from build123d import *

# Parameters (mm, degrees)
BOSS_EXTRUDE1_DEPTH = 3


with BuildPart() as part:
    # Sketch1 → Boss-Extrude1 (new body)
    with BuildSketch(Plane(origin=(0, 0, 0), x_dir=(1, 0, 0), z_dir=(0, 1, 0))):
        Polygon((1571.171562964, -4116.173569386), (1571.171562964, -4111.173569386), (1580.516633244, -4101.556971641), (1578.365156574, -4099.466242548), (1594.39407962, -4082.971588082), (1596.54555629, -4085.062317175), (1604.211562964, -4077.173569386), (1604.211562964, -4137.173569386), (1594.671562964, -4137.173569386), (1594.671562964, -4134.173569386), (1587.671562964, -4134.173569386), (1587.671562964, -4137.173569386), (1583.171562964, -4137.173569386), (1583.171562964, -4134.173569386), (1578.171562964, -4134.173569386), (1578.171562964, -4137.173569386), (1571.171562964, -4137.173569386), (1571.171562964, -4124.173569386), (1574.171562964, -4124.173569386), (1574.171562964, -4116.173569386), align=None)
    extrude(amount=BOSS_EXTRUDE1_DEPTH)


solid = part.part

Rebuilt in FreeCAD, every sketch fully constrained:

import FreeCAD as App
import Part
import Sketcher

V = App.Vector
Q = App.Units.Quantity

doc = App.newDocument("Part")
body = doc.addObject("PartDesign::Body", "Body")

# Sketch on XZ plane
sketch1 = doc.addObject("Sketcher::SketchObject", "Sketch")
body.addObject(sketch1)
sketch1.AttachmentSupport = (doc.XZ_Plane, [""])
sketch1.MapMode = "FlatFace"
sketch1.addGeometry([
    Part.LineSegment(V(1571.2, 4111.2, 0), V(1571.2, 4116.2, 0)),  # 0
    Part.LineSegment(V(1571.2, 4116.2, 0), V(1574.2, 4116.2, 0)),  # 1
    Part.LineSegment(V(1574.2, 4116.2, 0), V(1574.2, 4124.2, 0)),  # 2
    Part.LineSegment(V(1574.2, 4124.2, 0), V(1571.2, 4124.2, 0)),  # 3
    Part.LineSegment(V(1571.2, 4124.2, 0), V(1571.2, 4137.2, 0)),  # 4
    Part.LineSegment(V(1571.2, 4137.2, 0), V(1578.2, 4137.2, 0)),  # 5
    Part.LineSegment(V(1578.2, 4137.2, 0), V(1578.2, 4134.2, 0)),  # 6
    Part.LineSegment(V(1578.2, 4134.2, 0), V(1583.2, 4134.2, 0)),  # 7
    Part.LineSegment(V(1583.2, 4134.2, 0), V(1583.2, 4137.2, 0)),  # 8
    Part.LineSegment(V(1583.2, 4137.2, 0), V(1587.7, 4137.2, 0)),  # 9
    Part.LineSegment(V(1587.7, 4137.2, 0), V(1587.7, 4134.2, 0)),  # 10
    Part.LineSegment(V(1587.7, 4134.2, 0), V(1594.7, 4134.2, 0)),  # 11
    Part.LineSegment(V(1594.7, 4134.2, 0), V(1594.7, 4137.2, 0)),  # 12
    Part.LineSegment(V(1594.7, 4137.2, 0), V(1604.2, 4137.2, 0)),  # 13
    Part.LineSegment(V(1604.2, 4137.2, 0), V(1604.2, 4077.2, 0)),  # 14
    Part.LineSegment(V(1604.2, 4077.2, 0), V(1596.5, 4085.1, 0)),  # 15
    Part.LineSegment(V(1596.5, 4085.1, 0), V(1594.4, 4083, 0)),  # 16
    Part.LineSegment(V(1594.4, 4083, 0), V(1578.4, 4099.5, 0)),  # 17
    Part.LineSegment(V(1578.4, 4099.5, 0), V(1580.5, 4101.6, 0)),  # 18
    Part.LineSegment(V(1580.5, 4101.6, 0), V(1571.2, 4111.2, 0)),  # 19
], False)
sketch1.addConstraint([
    Sketcher.Constraint("Coincident", 0, 2, 1, 1),
    Sketcher.Constraint("Coincident", 1, 2, 2, 1),
    Sketcher.Constraint("Coincident", 2, 2, 3, 1),
    Sketcher.Constraint("Coincident", 3, 2, 4, 1),
    Sketcher.Constraint("Coincident", 4, 2, 5, 1),
    Sketcher.Constraint("Coincident", 5, 2, 6, 1),
    Sketcher.Constraint("Coincident", 6, 2, 7, 1),
    Sketcher.Constraint("Coincident", 7, 2, 8, 1),
    Sketcher.Constraint("Coincident", 8, 2, 9, 1),
    Sketcher.Constraint("Coincident", 9, 2, 10, 1),
    Sketcher.Constraint("Coincident", 10, 2, 11, 1),
    Sketcher.Constraint("Coincident", 11, 2, 12, 1),
    Sketcher.Constraint("Coincident", 12, 2, 13, 1),
    Sketcher.Constraint("Coincident", 13, 2, 14, 1),
    Sketcher.Constraint("Coincident", 14, 2, 15, 1),
    Sketcher.Constraint("Coincident", 15, 2, 16, 1),
    Sketcher.Constraint("Coincident", 16, 2, 17, 1),
    Sketcher.Constraint("Coincident", 17, 2, 18, 1),
    Sketcher.Constraint("Coincident", 18, 2, 19, 1),
    Sketcher.Constraint("Coincident", 19, 2, 0, 1),
    Sketcher.Constraint("Vertical", 0),
    Sketcher.Constraint("Horizontal", 1),
    Sketcher.Constraint("Vertical", 2),
    Sketcher.Constraint("Horizontal", 3),
    Sketcher.Constraint("Vertical", 4),
    Sketcher.Constraint("Horizontal", 5),
    Sketcher.Constraint("Vertical", 6),
    Sketcher.Constraint("Horizontal", 7),
    Sketcher.Constraint("Vertical", 8),
    Sketcher.Constraint("Horizontal", 9),
    Sketcher.Constraint("Vertical", 10),
    Sketcher.Constraint("Horizontal", 11),
    Sketcher.Constraint("Vertical", 12),
    Sketcher.Constraint("Horizontal", 13),
    Sketcher.Constraint("Vertical", 14),
    Sketcher.Constraint("Perpendicular", 15, 16),
    Sketcher.Constraint("Perpendicular", 16, 17),
    Sketcher.Constraint("Perpendicular", 17, 18),
    Sketcher.Constraint("Perpendicular", 18, 19),
    Sketcher.Constraint("Horizontal", 5, 2, 8, 2),
    Sketcher.Constraint("Horizontal", 7, 2, 10, 2),
    Sketcher.Constraint("Horizontal", 9, 2, 12, 2),
    Sketcher.Constraint("Vertical", 0, 2, 3, 2),
    Sketcher.Constraint("Equal", 5, 11),
    Sketcher.Constraint("Equal", 7, 0),
    Sketcher.Constraint("Equal", 3, 6),
    Sketcher.Constraint("Equal", 16, 18),
    Sketcher.Constraint("DistanceX", 1, 1, 1, 2, Q("3 mm")),
    Sketcher.Constraint("DistanceX", 5, 1, 5, 2, Q("7 mm")),
    Sketcher.Constraint("DistanceX", 7, 1, 7, 2, Q("5 mm")),
    Sketcher.Constraint("DistanceY", 2, 1, 2, 2, Q("8 mm")),
    Sketcher.Constraint("DistanceY", 4, 1, 4, 2, Q("13 mm")),
    Sketcher.Constraint("DistanceY", 14, 2, 14, 1, Q("60 mm")),
    Sketcher.Constraint("Distance", 15, Q("11 mm")),
    Sketcher.Constraint("Distance", 16, Q("3 mm")),
    Sketcher.Constraint("Distance", 17, Q("23 mm")),
    Sketcher.Constraint("DistanceX", 9, 1, 9, 2, Q("4.5 mm")),
    Sketcher.Constraint("DistanceX", 13, 1, 13, 2, Q("9.54 mm")),
    Sketcher.Constraint("DistanceY", -1, 1, 0, 2, Q("4116.173569 mm")),
    Sketcher.Constraint("DistanceX", -1, 1, 16, 2, Q("1594.39408 mm")),
])
pad1 = doc.addObject("PartDesign::Pad", "Pad")
body.addObject(pad1)
pad1.Profile = sketch1
pad1.Length = 3
pad1.Reversed = True

doc.recompute()
